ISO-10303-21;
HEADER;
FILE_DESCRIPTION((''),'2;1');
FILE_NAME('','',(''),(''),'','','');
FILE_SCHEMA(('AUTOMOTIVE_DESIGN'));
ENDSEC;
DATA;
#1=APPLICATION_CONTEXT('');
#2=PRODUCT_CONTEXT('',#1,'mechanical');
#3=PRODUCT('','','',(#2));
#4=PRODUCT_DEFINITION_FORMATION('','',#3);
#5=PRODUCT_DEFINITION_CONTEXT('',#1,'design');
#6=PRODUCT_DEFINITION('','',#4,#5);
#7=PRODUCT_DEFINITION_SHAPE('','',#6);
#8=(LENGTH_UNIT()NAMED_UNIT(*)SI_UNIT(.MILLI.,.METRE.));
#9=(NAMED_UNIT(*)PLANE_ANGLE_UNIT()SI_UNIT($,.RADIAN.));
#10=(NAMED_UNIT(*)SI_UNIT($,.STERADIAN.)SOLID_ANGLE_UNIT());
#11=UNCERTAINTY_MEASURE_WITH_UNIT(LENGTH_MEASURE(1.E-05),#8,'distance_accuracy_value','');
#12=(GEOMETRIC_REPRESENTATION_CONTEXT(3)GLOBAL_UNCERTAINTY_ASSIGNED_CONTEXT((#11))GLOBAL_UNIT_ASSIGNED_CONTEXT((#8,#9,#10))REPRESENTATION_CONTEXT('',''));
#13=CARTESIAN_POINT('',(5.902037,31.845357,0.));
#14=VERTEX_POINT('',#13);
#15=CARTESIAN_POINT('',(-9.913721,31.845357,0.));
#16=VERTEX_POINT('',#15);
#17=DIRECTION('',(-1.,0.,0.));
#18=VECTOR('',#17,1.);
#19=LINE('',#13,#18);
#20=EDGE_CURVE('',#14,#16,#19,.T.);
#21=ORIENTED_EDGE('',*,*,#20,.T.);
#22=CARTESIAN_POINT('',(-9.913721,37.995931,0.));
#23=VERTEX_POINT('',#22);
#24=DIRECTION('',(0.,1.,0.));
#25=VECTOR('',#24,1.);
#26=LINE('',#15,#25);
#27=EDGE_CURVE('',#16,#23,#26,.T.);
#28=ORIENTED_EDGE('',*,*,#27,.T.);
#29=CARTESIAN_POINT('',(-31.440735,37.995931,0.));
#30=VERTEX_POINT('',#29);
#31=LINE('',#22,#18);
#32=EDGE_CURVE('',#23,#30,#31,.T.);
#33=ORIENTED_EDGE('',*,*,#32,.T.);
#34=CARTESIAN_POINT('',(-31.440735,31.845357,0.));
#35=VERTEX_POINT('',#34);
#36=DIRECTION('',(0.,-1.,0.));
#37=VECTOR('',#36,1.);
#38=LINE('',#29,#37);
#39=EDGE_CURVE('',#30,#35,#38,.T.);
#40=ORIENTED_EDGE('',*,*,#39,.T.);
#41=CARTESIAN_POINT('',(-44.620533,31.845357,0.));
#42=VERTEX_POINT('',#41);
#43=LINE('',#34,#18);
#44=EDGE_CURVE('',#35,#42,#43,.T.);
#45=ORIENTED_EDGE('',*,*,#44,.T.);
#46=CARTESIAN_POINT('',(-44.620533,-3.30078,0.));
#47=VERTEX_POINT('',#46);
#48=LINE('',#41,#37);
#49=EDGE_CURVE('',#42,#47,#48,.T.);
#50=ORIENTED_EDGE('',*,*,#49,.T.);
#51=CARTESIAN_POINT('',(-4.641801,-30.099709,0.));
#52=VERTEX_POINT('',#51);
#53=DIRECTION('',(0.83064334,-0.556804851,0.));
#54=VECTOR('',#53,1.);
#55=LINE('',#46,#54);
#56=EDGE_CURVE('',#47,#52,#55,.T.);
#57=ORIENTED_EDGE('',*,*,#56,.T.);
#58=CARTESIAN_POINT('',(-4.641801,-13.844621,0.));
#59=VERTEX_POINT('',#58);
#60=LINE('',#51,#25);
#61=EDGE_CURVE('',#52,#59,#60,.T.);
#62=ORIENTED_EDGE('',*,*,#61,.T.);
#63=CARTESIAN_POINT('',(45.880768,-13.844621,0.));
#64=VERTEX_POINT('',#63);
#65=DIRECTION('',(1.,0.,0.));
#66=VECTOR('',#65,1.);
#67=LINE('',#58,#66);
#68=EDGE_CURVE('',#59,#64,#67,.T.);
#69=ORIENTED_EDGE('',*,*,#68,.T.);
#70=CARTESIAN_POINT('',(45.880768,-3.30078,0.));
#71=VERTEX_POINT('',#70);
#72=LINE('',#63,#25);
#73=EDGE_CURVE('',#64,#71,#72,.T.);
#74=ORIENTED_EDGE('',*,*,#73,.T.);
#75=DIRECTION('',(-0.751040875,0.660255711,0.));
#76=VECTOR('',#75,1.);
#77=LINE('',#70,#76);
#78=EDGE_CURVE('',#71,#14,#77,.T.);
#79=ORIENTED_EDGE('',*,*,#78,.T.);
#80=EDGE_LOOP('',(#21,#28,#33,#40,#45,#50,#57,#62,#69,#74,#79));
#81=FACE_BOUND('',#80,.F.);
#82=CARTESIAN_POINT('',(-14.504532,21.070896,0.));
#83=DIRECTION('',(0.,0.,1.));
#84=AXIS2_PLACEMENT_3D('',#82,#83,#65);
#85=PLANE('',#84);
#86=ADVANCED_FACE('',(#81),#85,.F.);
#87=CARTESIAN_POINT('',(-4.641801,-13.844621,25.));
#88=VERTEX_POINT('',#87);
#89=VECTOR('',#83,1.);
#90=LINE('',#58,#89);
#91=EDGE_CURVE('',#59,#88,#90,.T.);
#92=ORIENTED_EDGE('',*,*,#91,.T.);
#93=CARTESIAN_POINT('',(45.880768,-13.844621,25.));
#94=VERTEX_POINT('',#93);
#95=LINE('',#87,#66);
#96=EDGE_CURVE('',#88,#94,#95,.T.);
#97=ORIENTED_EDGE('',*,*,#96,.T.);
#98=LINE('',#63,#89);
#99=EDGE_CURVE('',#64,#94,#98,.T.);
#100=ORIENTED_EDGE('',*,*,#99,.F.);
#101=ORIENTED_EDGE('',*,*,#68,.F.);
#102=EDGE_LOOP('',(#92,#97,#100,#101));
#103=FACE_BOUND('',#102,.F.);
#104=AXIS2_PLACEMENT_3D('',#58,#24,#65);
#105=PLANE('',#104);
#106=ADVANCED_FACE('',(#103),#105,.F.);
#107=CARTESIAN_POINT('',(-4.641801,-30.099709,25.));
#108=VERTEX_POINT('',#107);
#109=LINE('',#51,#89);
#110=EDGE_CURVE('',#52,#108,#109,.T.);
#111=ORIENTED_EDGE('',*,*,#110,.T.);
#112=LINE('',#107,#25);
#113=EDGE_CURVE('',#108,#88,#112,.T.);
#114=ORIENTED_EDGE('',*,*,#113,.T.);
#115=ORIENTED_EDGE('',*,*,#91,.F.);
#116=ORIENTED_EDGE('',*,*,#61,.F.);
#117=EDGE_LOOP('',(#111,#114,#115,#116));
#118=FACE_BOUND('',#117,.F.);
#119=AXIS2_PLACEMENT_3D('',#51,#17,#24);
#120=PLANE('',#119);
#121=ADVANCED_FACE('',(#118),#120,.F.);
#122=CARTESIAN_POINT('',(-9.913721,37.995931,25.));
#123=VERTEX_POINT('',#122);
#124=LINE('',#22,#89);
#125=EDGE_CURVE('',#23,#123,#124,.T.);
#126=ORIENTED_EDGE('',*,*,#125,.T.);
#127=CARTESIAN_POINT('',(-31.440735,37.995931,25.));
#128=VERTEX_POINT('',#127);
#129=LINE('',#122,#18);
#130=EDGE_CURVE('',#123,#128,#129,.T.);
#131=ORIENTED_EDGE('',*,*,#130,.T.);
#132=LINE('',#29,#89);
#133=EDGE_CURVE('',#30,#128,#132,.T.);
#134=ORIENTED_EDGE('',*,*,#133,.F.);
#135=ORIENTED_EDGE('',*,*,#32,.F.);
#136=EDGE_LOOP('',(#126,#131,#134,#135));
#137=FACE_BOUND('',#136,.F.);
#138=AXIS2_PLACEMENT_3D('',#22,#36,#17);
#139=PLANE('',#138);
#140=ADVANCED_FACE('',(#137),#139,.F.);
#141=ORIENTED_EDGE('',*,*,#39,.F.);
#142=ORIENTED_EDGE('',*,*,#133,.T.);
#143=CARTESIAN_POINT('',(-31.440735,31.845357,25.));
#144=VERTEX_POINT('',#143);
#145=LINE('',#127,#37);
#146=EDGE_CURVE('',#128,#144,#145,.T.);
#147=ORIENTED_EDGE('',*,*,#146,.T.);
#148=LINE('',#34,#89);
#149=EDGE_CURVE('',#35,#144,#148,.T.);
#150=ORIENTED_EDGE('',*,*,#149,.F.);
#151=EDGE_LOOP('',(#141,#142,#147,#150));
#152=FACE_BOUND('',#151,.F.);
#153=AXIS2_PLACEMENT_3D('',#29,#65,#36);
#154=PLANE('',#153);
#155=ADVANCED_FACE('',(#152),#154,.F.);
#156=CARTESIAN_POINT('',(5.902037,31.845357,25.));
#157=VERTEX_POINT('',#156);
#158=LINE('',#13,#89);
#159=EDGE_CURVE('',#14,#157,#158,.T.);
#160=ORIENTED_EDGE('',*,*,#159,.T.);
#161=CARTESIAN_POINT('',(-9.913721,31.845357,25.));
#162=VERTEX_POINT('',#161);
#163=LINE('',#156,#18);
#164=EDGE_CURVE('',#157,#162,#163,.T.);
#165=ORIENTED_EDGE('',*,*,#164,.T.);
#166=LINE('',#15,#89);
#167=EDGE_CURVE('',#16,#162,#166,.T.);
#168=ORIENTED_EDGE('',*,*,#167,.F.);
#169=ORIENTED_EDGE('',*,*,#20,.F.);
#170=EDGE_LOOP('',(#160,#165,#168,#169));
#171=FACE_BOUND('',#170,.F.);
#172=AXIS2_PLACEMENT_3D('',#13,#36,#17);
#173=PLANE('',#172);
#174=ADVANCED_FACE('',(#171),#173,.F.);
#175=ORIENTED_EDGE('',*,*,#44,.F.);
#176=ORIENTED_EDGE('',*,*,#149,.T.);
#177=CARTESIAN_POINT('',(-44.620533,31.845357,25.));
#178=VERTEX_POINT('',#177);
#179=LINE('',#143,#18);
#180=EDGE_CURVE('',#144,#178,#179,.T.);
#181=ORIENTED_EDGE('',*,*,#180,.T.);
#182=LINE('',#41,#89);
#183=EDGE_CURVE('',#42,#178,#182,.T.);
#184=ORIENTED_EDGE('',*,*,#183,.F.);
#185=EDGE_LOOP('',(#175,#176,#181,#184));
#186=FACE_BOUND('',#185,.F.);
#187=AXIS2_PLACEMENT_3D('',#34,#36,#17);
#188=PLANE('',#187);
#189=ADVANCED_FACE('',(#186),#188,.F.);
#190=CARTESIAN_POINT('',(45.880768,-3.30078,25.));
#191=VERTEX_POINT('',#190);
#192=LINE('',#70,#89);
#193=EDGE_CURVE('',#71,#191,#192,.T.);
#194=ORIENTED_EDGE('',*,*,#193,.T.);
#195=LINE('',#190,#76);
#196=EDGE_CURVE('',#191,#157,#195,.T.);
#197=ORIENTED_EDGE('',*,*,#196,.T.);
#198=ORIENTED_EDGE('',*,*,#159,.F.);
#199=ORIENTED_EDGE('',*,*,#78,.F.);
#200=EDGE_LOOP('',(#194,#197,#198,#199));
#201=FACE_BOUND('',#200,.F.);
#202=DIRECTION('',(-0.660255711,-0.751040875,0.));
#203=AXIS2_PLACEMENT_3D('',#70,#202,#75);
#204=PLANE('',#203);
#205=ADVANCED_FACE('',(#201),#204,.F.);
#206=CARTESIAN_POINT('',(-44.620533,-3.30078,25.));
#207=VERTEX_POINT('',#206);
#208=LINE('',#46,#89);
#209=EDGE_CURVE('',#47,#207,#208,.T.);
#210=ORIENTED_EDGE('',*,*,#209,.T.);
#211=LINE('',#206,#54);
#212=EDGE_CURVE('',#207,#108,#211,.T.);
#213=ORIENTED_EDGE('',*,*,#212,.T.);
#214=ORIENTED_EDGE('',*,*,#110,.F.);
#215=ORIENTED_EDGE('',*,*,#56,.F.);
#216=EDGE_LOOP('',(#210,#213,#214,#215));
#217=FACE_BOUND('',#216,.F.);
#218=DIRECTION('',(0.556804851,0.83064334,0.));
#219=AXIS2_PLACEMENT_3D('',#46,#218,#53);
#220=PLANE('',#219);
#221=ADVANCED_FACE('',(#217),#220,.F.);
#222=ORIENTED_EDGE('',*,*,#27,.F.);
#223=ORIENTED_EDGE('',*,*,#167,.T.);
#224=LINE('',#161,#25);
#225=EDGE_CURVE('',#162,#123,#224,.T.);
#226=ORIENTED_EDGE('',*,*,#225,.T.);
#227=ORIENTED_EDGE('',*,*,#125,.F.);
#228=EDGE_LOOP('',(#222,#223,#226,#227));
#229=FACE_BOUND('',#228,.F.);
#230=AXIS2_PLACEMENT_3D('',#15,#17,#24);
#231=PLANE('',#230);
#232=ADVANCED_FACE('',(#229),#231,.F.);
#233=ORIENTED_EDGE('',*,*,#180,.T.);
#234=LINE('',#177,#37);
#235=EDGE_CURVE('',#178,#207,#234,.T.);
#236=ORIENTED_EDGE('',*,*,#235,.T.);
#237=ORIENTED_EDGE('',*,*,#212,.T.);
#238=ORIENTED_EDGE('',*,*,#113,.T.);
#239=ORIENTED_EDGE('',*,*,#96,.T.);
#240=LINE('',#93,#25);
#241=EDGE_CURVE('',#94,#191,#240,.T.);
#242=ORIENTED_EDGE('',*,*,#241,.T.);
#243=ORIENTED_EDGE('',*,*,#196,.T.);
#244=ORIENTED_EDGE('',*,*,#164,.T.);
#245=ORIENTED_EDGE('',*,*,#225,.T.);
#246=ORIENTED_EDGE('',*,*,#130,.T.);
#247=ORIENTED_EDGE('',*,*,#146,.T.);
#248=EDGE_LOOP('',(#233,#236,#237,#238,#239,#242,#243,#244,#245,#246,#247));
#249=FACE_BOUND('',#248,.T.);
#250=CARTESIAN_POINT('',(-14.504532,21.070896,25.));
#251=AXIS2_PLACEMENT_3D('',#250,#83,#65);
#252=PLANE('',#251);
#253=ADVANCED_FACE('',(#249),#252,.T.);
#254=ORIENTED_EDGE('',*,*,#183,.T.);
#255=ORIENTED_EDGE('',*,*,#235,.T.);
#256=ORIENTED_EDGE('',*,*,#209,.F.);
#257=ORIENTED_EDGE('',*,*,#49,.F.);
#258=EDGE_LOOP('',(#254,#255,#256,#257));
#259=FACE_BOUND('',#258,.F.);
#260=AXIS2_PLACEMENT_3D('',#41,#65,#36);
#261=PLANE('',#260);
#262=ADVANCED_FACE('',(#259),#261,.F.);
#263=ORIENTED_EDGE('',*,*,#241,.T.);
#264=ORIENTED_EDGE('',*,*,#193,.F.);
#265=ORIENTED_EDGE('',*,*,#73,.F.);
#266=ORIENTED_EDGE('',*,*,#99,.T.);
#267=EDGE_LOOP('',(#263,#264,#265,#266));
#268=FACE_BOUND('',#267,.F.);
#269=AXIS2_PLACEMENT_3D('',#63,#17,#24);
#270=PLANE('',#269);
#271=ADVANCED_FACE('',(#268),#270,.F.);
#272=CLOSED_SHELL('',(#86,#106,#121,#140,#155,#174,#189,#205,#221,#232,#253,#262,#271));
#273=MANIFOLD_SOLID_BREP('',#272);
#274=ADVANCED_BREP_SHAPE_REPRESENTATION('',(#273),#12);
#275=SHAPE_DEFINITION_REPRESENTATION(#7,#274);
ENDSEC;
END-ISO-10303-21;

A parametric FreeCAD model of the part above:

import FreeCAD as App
import Part
import Sketcher

doc = App.newDocument("Part")
body = doc.addObject("PartDesign::Body", "Body")

# Sketch on XY plane
sketch1 = doc.addObject("Sketcher::SketchObject", "Sketch")
body.addObject(sketch1)
sketch1.AttachmentSupport = (doc.XY_Plane, [""])
sketch1.MapMode = "FlatFace"
sketch1.addGeometry([
    Part.LineSegment(App.Vector(-31, 32, 0), App.Vector(-45, 32, 0)),  # 0
    Part.LineSegment(App.Vector(-45, 32, 0), App.Vector(-45, -3, 0)),  # 1
    Part.LineSegment(App.Vector(-45, -3, 0), App.Vector(-5, -30, 0)),  # 2
    Part.LineSegment(App.Vector(-5, -30, 0), App.Vector(-5, -14, 0)),  # 3
    Part.LineSegment(App.Vector(-5, -14, 0), App.Vector(46, -14, 0)),  # 4
    Part.LineSegment(App.Vector(46, -14, 0), App.Vector(46, -3, 0)),  # 5
    Part.LineSegment(App.Vector(46, -3, 0), App.Vector(6, 32, 0)),  # 6
    Part.LineSegment(App.Vector(6, 32, 0), App.Vector(-10, 32, 0)),  # 7
    Part.LineSegment(App.Vector(-10, 32, 0), App.Vector(-10, 38, 0)),  # 8
    Part.LineSegment(App.Vector(-10, 38, 0), App.Vector(-31, 38, 0)),  # 9
    Part.LineSegment(App.Vector(-31, 38, 0), App.Vector(-31, 32, 0)),  # 10
], False)
sketch1.addConstraint([
    Sketcher.Constraint("Coincident", 0, 2, 1, 1),
    Sketcher.Constraint("Coincident", 1, 2, 2, 1),
    Sketcher.Constraint("Coincident", 2, 2, 3, 1),
    Sketcher.Constraint("Coincident", 3, 2, 4, 1),
    Sketcher.Constraint("Coincident", 4, 2, 5, 1),
    Sketcher.Constraint("Coincident", 5, 2, 6, 1),
    Sketcher.Constraint("Coincident", 6, 2, 7, 1),
    Sketcher.Constraint("Coincident", 7, 2, 8, 1),
    Sketcher.Constraint("Coincident", 8, 2, 9, 1),
    Sketcher.Constraint("Coincident", 9, 2, 10, 1),
    Sketcher.Constraint("Coincident", 10, 2, 0, 1),
    Sketcher.Constraint("Horizontal", 0),
    Sketcher.Constraint("Vertical", 1),
    Sketcher.Constraint("Vertical", 3),
    Sketcher.Constraint("Horizontal", 4),
    Sketcher.Constraint("Vertical", 5),
    Sketcher.Constraint("Horizontal", 7),
    Sketcher.Constraint("Vertical", 8),
    Sketcher.Constraint("Horizontal", 9),
    Sketcher.Constraint("Vertical", 10),
    Sketcher.Constraint("Horizontal", 1, 2, 5, 2),
    Sketcher.Constraint("Horizontal", 0, 2, 6, 2),
    Sketcher.Constraint("DistanceX", 0, 2, 0, 1, 13.179798),
    Sketcher.Constraint("Distance", 6, 53.231099),
    Sketcher.Constraint("DistanceX", 4, 1, 4, 2, 50.522569),
    Sketcher.Constraint("DistanceX", 7, 2, 7, 1, 15.815758),
    Sketcher.Constraint("DistanceY", 3, 1, 3, 2, 16.255088),
    Sketcher.Constraint("DistanceY", 5, 1, 5, 2, 10.543841),
    Sketcher.Constraint("DistanceX", 2, 2, -1, 1, 4.641801),
    Sketcher.Constraint("DistanceX", 1, 2, 4, 2, 90.501301),
    Sketcher.Constraint("DistanceX", 9, 2, 9, 1, 21.527014),
    Sketcher.Constraint("DistanceY", 8, 1, 8, 2, 6.150574),
    Sketcher.Constraint("DistanceY", 1, 2, -1, 1, 3.30078),
])
pad1 = doc.addObject("PartDesign::Pad", "Pad")
body.addObject(pad1)
pad1.Profile = sketch1
pad1.Length = 25

doc.recompute()
